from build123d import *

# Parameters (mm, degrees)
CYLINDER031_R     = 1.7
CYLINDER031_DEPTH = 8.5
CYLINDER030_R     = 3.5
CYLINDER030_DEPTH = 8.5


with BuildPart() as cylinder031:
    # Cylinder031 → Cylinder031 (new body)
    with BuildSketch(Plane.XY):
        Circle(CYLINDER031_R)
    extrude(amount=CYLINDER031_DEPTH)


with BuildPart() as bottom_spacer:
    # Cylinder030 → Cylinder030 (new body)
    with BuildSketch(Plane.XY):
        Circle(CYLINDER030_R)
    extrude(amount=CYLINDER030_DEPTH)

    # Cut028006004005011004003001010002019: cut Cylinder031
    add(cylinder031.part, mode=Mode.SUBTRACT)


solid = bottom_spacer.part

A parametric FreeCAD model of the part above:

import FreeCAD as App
import Part
import Sketcher

doc = App.newDocument("Part")
body = doc.addObject("PartDesign::Body", "Body")

# Sketch on XY plane
sketch1 = doc.addObject("Sketcher::SketchObject", "Sketch")
body.addObject(sketch1)
sketch1.AttachmentSupport = (doc.XY_Plane, [""])
sketch1.MapMode = "FlatFace"
sketch1.addGeometry(Part.Circle(App.Vector(0, 0, 0), App.Vector(0, 0, 1), 1.7), False)
sketch1.addConstraint([
    Sketcher.Constraint("Coincident", 0, 3, -1, 1),
    Sketcher.Constraint("Diameter", 0, 3.4),
])
pad1 = doc.addObject("PartDesign::Pad", "Pad")
body.addObject(pad1)
pad1.Profile = sketch1
pad1.Length = 8.5
body2 = doc.addObject("PartDesign::Body", "Body001")

# Sketch on XY plane
sketch2 = doc.addObject("Sketcher::SketchObject", "Sketch001")
body2.addObject(sketch2)
sketch2.AttachmentSupport = (doc.getObject("XY_Plane001"), [""])
sketch2.MapMode = "FlatFace"
sketch2.addGeometry(Part.Circle(App.Vector(0, 0, 0), App.Vector(0, 0, 1), 3.5), False)
sketch2.addConstraint([
    Sketcher.Constraint("Coincident", 0, 3, -1, 1),
    Sketcher.Constraint("Diameter", 0, 7.0),
])
pad2 = doc.addObject("PartDesign::Pad", "Pad001")
body2.addObject(pad2)
pad2.Profile = sketch2
pad2.Length = 8.5
doc.recompute()

boolean = doc.addObject("PartDesign::Boolean", "Boolean")
body2.addObject(boolean)
boolean.Type = "Cut"
boolean.addObjects([body])

doc.recompute()
